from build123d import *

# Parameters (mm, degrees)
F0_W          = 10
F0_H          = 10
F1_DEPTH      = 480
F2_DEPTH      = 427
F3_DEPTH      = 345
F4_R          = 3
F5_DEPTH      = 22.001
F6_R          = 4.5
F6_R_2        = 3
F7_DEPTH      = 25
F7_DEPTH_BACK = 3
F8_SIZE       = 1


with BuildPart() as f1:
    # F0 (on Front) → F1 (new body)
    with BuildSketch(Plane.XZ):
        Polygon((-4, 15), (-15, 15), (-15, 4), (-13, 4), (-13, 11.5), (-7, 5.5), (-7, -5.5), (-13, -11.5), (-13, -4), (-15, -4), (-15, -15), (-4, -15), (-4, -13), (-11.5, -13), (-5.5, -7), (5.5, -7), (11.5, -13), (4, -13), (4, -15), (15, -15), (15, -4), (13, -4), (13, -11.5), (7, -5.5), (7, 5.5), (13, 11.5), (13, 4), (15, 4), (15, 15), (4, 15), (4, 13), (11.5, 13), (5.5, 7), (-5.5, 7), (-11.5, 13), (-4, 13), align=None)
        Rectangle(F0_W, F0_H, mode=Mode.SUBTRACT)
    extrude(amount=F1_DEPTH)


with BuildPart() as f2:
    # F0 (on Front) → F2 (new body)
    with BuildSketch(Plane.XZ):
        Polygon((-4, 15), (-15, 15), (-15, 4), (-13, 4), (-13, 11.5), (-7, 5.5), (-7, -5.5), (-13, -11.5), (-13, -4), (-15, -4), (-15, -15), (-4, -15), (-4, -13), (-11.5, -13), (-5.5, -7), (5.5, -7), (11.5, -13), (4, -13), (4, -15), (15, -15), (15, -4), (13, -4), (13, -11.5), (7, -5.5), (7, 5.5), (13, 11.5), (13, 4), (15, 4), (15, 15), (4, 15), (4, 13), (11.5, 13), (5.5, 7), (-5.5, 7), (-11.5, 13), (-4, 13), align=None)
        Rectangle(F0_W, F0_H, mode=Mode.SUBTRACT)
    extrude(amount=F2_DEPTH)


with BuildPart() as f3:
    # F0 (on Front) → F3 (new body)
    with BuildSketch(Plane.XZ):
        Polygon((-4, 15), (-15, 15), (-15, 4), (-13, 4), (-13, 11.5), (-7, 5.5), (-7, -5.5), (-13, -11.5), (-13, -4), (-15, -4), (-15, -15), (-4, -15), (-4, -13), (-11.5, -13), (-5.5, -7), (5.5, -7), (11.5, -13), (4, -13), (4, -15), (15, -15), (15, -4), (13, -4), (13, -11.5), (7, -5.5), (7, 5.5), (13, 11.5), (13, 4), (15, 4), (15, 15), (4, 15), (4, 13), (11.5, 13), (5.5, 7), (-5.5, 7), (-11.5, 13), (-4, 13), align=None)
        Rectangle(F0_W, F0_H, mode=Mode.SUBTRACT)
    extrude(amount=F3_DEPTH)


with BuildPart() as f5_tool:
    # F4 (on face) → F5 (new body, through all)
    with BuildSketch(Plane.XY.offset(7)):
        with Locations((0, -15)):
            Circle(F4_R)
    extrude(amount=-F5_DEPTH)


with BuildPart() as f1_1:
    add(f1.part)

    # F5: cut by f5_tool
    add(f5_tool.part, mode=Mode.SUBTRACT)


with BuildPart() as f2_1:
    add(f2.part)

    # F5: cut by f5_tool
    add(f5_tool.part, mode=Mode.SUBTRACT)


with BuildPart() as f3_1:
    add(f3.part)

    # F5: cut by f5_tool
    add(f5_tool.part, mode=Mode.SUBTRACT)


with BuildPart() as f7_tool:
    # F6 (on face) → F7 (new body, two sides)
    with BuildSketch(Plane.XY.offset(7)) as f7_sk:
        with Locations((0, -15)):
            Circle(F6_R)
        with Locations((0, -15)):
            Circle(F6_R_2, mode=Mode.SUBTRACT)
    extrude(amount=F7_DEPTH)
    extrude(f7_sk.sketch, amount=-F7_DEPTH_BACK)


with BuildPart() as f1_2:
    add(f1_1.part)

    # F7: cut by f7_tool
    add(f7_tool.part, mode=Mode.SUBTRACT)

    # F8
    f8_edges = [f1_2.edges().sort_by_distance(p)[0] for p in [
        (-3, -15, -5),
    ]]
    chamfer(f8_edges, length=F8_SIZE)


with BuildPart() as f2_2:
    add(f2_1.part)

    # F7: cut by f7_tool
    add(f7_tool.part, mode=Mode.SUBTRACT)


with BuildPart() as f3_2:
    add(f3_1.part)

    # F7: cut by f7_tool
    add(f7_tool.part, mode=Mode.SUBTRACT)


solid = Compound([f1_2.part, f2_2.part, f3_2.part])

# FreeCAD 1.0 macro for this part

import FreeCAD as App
import Part
import Sketcher
from FreeCAD import Vector
Q = App.Units.Quantity


def edges_at(feature, points):
    """Names of the edges that pass closest to the given points."""
    edges = feature.Shape.Edges
    near = lambda p: min(range(len(edges)), key=lambda i: edges[i].distToShape(Part.Vertex(*p))[0])
    return sorted({f"Edge{near(p) + 1}" for p in points})


def add_polygon(sketch, points):
    """Adds a closed chain of lines whose ends are joined by coincident constraints."""
    first, n = sketch.GeometryCount, len(points)
    for a, b in zip(points, points[1:] + points[:1]):
        sketch.addGeometry(Part.LineSegment(App.Vector(*a, 0), App.Vector(*b, 0)), False)
    for i in range(n):
        sketch.addConstraint(Sketcher.Constraint("Coincident", first + i, 2, first + (i + 1) % n, 1))

doc = App.newDocument("Part")
body = doc.addObject("PartDesign::Body", "Body")

# Sketch on XZ plane
sketch1 = body.newObject("Sketcher::SketchObject", "Sketch")
sketch1.AttachmentSupport = (doc.getObject("XZ_Plane"), [""])
sketch1.MapMode = "FlatFace"
add_polygon(sketch1, [(-4, 15), (-15, 15), (-15, 4), (-13, 4), (-13, 11.5), (-7, 5.5), (-7, -5.5), (-13, -11.5), (-13, -4), (-15, -4), (-15, -15), (-4, -15), (-4, -13), (-11.5, -13), (-5.5, -7), (5.5, -7), (11.5, -13), (4, -13), (4, -15), (15, -15), (15, -4), (13, -4), (13, -11.5), (7, -5.5), (7, 5.5), (13, 11.5), (13, 4), (15, 4), (15, 15), (4, 15), (4, 13), (11.5, 13), (5.5, 7), (-5.5, 7), (-11.5, 13), (-4, 13)])  # lines 0-35
add_polygon(sketch1, [(5, -5), (-5, -5), (-5, 5), (5, 5)])  # lines 36-39
sketch1.addConstraint([
    Sketcher.Constraint("Horizontal", 0),
    Sketcher.Constraint("Vertical", 1),
    Sketcher.Constraint("Horizontal", 2),
    Sketcher.Constraint("Vertical", 3),
    Sketcher.Constraint("Vertical", 5),
    Sketcher.Constraint("Vertical", 7),
    Sketcher.Constraint("Horizontal", 8),
    Sketcher.Constraint("Vertical", 9),
    Sketcher.Constraint("Horizontal", 10),
    Sketcher.Constraint("Vertical", 11),
    Sketcher.Constraint("Horizontal", 12),
    Sketcher.Constraint("Horizontal", 14),
    Sketcher.Constraint("Horizontal", 16),
    Sketcher.Constraint("Vertical", 17),
    Sketcher.Constraint("Horizontal", 18),
    Sketcher.Constraint("Vertical", 19),
    Sketcher.Constraint("Horizontal", 20),
    Sketcher.Constraint("Vertical", 21),
    Sketcher.Constraint("Vertical", 23),
    Sketcher.Constraint("Vertical", 25),
    Sketcher.Constraint("Horizontal", 26),
    Sketcher.Constraint("Vertical", 27),
    Sketcher.Constraint("Horizontal", 28),
    Sketcher.Constraint("Vertical", 29),
    Sketcher.Constraint("Horizontal", 30),
    Sketcher.Constraint("Horizontal", 32),
    Sketcher.Constraint("Horizontal", 34),
    Sketcher.Constraint("Vertical", 35),
    Sketcher.Constraint("Horizontal", 36),
    Sketcher.Constraint("Vertical", 37),
    Sketcher.Constraint("Horizontal", 38),
    Sketcher.Constraint("Vertical", 39),
    Sketcher.Constraint("Symmetric", 0, 2, 18, 2, -1, 1),
    Sketcher.Constraint("Symmetric", 2, 2, 20, 2, -1, 1),
    Sketcher.Constraint("Symmetric", 4, 2, 22, 2, -1, 1),
    Sketcher.Constraint("Symmetric", 6, 2, 24, 2, -1, 1),
    Sketcher.Constraint("Symmetric", 8, 2, 26, 2, -1, 1),
    Sketcher.Constraint("Symmetric", 10, 2, 28, 2, -1, 1),
    Sketcher.Constraint("Symmetric", 12, 2, 30, 2, -1, 1),
    Sketcher.Constraint("Symmetric", 13, 2, 31, 2, -1, 1),
    Sketcher.Constraint("Symmetric", 15, 2, 33, 2, -1, 1),
    Sketcher.Constraint("Symmetric", 36, 2, 38, 2, -1, 1),
    Sketcher.Constraint("Symmetric", 12, 2, 15, 2, -2),
    Sketcher.Constraint("Symmetric", 10, 2, 17, 2, -2),
    Sketcher.Constraint("Symmetric", 8, 2, 19, 2, -2),
    Sketcher.Constraint("Symmetric", 6, 2, 21, 2, -2),
    Sketcher.Constraint("Perpendicular", 4, 6),
    Sketcher.Constraint("Parallel", 6, 13),
    Sketcher.Constraint("Perpendicular", 13, 15),
    Sketcher.Constraint("Parallel", 15, 22),
    Sketcher.Constraint("Perpendicular", 22, 24),
    Sketcher.Constraint("Perpendicular", 31, 33),
    Sketcher.Constraint("Horizontal", 5, 2, 22, 2),
    Sketcher.Constraint("Vertical", 11, 2, 34, 2),
    Sketcher.Constraint("Equal", 10, 14),
    Sketcher.Constraint("Equal", 32, 1),
    Sketcher.Constraint("Equal", 34, 3),
    Sketcher.Constraint("Equal", 1, 5),
    Sketcher.Constraint("Equal", 26, 11),
    Sketcher.Constraint("Equal", 38, 37),
    Sketcher.Constraint("Equal", 6, 13),
    Sketcher.Constraint("DistanceX", 0, 2, 0, 1, Q("11 mm")),
    Sketcher.Constraint("DistanceX", 2, 1, 2, 2, Q("2 mm")),
    Sketcher.Constraint("DistanceX", 36, 2, 36, 1, Q("10 mm")),
    Sketcher.Constraint("DistanceX", 12, 2, 12, 1, Q("7.5 mm")),
    Sketcher.Constraint("DistanceX", 0, 2, -1, 1, Q("15 mm")),
])
pad1 = body.newObject("PartDesign::Pad", "Pad")
pad1.Profile = sketch1
pad1.Length = 480
body2 = doc.addObject("PartDesign::Body", "Body001")

# Sketch on XZ plane
sketch2 = body2.newObject("Sketcher::SketchObject", "Sketch001")
sketch2.AttachmentSupport = (doc.getObject("XZ_Plane001"), [""])
sketch2.MapMode = "FlatFace"
add_polygon(sketch2, [(-4, 15), (-15, 15), (-15, 4), (-13, 4), (-13, 11.5), (-7, 5.5), (-7, -5.5), (-13, -11.5), (-13, -4), (-15, -4), (-15, -15), (-4, -15), (-4, -13), (-11.5, -13), (-5.5, -7), (5.5, -7), (11.5, -13), (4, -13), (4, -15), (15, -15), (15, -4), (13, -4), (13, -11.5), (7, -5.5), (7, 5.5), (13, 11.5), (13, 4), (15, 4), (15, 15), (4, 15), (4, 13), (11.5, 13), (5.5, 7), (-5.5, 7), (-11.5, 13), (-4, 13)])  # lines 0-35
add_polygon(sketch2, [(5, -5), (-5, -5), (-5, 5), (5, 5)])  # lines 36-39
sketch2.addConstraint([
    Sketcher.Constraint("Horizontal", 0),
    Sketcher.Constraint("Vertical", 1),
    Sketcher.Constraint("Horizontal", 2),
    Sketcher.Constraint("Vertical", 3),
    Sketcher.Constraint("Vertical", 5),
    Sketcher.Constraint("Vertical", 7),
    Sketcher.Constraint("Horizontal", 8),
    Sketcher.Constraint("Vertical", 9),
    Sketcher.Constraint("Horizontal", 10),
    Sketcher.Constraint("Vertical", 11),
    Sketcher.Constraint("Horizontal", 12),
    Sketcher.Constraint("Horizontal", 14),
    Sketcher.Constraint("Horizontal", 16),
    Sketcher.Constraint("Vertical", 17),
    Sketcher.Constraint("Horizontal", 18),
    Sketcher.Constraint("Vertical", 19),
    Sketcher.Constraint("Horizontal", 20),
    Sketcher.Constraint("Vertical", 21),
    Sketcher.Constraint("Vertical", 23),
    Sketcher.Constraint("Vertical", 25),
    Sketcher.Constraint("Horizontal", 26),
    Sketcher.Constraint("Vertical", 27),
    Sketcher.Constraint("Horizontal", 28),
    Sketcher.Constraint("Vertical", 29),
    Sketcher.Constraint("Horizontal", 30),
    Sketcher.Constraint("Horizontal", 32),
    Sketcher.Constraint("Horizontal", 34),
    Sketcher.Constraint("Vertical", 35),
    Sketcher.Constraint("Horizontal", 36),
    Sketcher.Constraint("Vertical", 37),
    Sketcher.Constraint("Horizontal", 38),
    Sketcher.Constraint("Vertical", 39),
    Sketcher.Constraint("Symmetric", 0, 2, 18, 2, -1, 1),
    Sketcher.Constraint("Symmetric", 2, 2, 20, 2, -1, 1),
    Sketcher.Constraint("Symmetric", 4, 2, 22, 2, -1, 1),
    Sketcher.Constraint("Symmetric", 6, 2, 24, 2, -1, 1),
    Sketcher.Constraint("Symmetric", 8, 2, 26, 2, -1, 1),
    Sketcher.Constraint("Symmetric", 10, 2, 28, 2, -1, 1),
    Sketcher.Constraint("Symmetric", 12, 2, 30, 2, -1, 1),
    Sketcher.Constraint("Symmetric", 13, 2, 31, 2, -1, 1),
    Sketcher.Constraint("Symmetric", 15, 2, 33, 2, -1, 1),
    Sketcher.Constraint("Symmetric", 36, 2, 38, 2, -1, 1),
    Sketcher.Constraint("Symmetric", 12, 2, 15, 2, -2),
    Sketcher.Constraint("Symmetric", 10, 2, 17, 2, -2),
    Sketcher.Constraint("Symmetric", 8, 2, 19, 2, -2),
    Sketcher.Constraint("Symmetric", 6, 2, 21, 2, -2),
    Sketcher.Constraint("Perpendicular", 4, 6),
    Sketcher.Constraint("Parallel", 6, 13),
    Sketcher.Constraint("Perpendicular", 13, 15),
    Sketcher.Constraint("Parallel", 15, 22),
    Sketcher.Constraint("Perpendicular", 22, 24),
    Sketcher.Constraint("Perpendicular", 31, 33),
    Sketcher.Constraint("Horizontal", 5, 2, 22, 2),
    Sketcher.Constraint("Vertical", 11, 2, 34, 2),
    Sketcher.Constraint("Equal", 10, 14),
    Sketcher.Constraint("Equal", 32, 1),
    Sketcher.Constraint("Equal", 34, 3),
    Sketcher.Constraint("Equal", 1, 5),
    Sketcher.Constraint("Equal", 26, 11),
    Sketcher.Constraint("Equal", 38, 37),
    Sketcher.Constraint("Equal", 6, 13),
    Sketcher.Constraint("DistanceX", 0, 2, 0, 1, Q("11 mm")),
    Sketcher.Constraint("DistanceX", 2, 1, 2, 2, Q("2 mm")),
    Sketcher.Constraint("DistanceX", 36, 2, 36, 1, Q("10 mm")),
    Sketcher.Constraint("DistanceX", 12, 2, 12, 1, Q("7.5 mm")),
    Sketcher.Constraint("DistanceX", 0, 2, -1, 1, Q("15 mm")),
])
pad2 = body2.newObject("PartDesign::Pad", "Pad001")
pad2.Profile = sketch2
pad2.Length = 427
body3 = doc.addObject("PartDesign::Body", "Body002")

# Sketch on XZ plane
sketch3 = body3.newObject("Sketcher::SketchObject", "Sketch002")
sketch3.AttachmentSupport = (doc.getObject("XZ_Plane002"), [""])
sketch3.MapMode = "FlatFace"
add_polygon(sketch3, [(-4, 15), (-15, 15), (-15, 4), (-13, 4), (-13, 11.5), (-7, 5.5), (-7, -5.5), (-13, -11.5), (-13, -4), (-15, -4), (-15, -15), (-4, -15), (-4, -13), (-11.5, -13), (-5.5, -7), (5.5, -7), (11.5, -13), (4, -13), (4, -15), (15, -15), (15, -4), (13, -4), (13, -11.5), (7, -5.5), (7, 5.5), (13, 11.5), (13, 4), (15, 4), (15, 15), (4, 15), (4, 13), (11.5, 13), (5.5, 7), (-5.5, 7), (-11.5, 13), (-4, 13)])  # lines 0-35
add_polygon(sketch3, [(5, -5), (-5, -5), (-5, 5), (5, 5)])  # lines 36-39
sketch3.addConstraint([
    Sketcher.Constraint("Horizontal", 0),
    Sketcher.Constraint("Vertical", 1),
    Sketcher.Constraint("Horizontal", 2),
    Sketcher.Constraint("Vertical", 3),
    Sketcher.Constraint("Vertical", 5),
    Sketcher.Constraint("Vertical", 7),
    Sketcher.Constraint("Horizontal", 8),
    Sketcher.Constraint("Vertical", 9),
    Sketcher.Constraint("Horizontal", 10),
    Sketcher.Constraint("Vertical", 11),
    Sketcher.Constraint("Horizontal", 12),
    Sketcher.Constraint("Horizontal", 14),
    Sketcher.Constraint("Horizontal", 16),
    Sketcher.Constraint("Vertical", 17),
    Sketcher.Constraint("Horizontal", 18),
    Sketcher.Constraint("Vertical", 19),
    Sketcher.Constraint("Horizontal", 20),
    Sketcher.Constraint("Vertical", 21),
    Sketcher.Constraint("Vertical", 23),
    Sketcher.Constraint("Vertical", 25),
    Sketcher.Constraint("Horizontal", 26),
    Sketcher.Constraint("Vertical", 27),
    Sketcher.Constraint("Horizontal", 28),
    Sketcher.Constraint("Vertical", 29),
    Sketcher.Constraint("Horizontal", 30),
    Sketcher.Constraint("Horizontal", 32),
    Sketcher.Constraint("Horizontal", 34),
    Sketcher.Constraint("Vertical", 35),
    Sketcher.Constraint("Horizontal", 36),
    Sketcher.Constraint("Vertical", 37),
    Sketcher.Constraint("Horizontal", 38),
    Sketcher.Constraint("Vertical", 39),
    Sketcher.Constraint("Symmetric", 0, 2, 18, 2, -1, 1),
    Sketcher.Constraint("Symmetric", 2, 2, 20, 2, -1, 1),
    Sketcher.Constraint("Symmetric", 4, 2, 22, 2, -1, 1),
    Sketcher.Constraint("Symmetric", 6, 2, 24, 2, -1, 1),
    Sketcher.Constraint("Symmetric", 8, 2, 26, 2, -1, 1),
    Sketcher.Constraint("Symmetric", 10, 2, 28, 2, -1, 1),
    Sketcher.Constraint("Symmetric", 12, 2, 30, 2, -1, 1),
    Sketcher.Constraint("Symmetric", 13, 2, 31, 2, -1, 1),
    Sketcher.Constraint("Symmetric", 15, 2, 33, 2, -1, 1),
    Sketcher.Constraint("Symmetric", 36, 2, 38, 2, -1, 1),
    Sketcher.Constraint("Symmetric", 12, 2, 15, 2, -2),
    Sketcher.Constraint("Symmetric", 10, 2, 17, 2, -2),
    Sketcher.Constraint("Symmetric", 8, 2, 19, 2, -2),
    Sketcher.Constraint("Symmetric", 6, 2, 21, 2, -2),
    Sketcher.Constraint("Perpendicular", 4, 6),
    Sketcher.Constraint("Parallel", 6, 13),
    Sketcher.Constraint("Perpendicular", 13, 15),
    Sketcher.Constraint("Parallel", 15, 22),
    Sketcher.Constraint("Perpendicular", 22, 24),
    Sketcher.Constraint("Perpendicular", 31, 33),
    Sketcher.Constraint("Horizontal", 5, 2, 22, 2),
    Sketcher.Constraint("Vertical", 11, 2, 34, 2),
    Sketcher.Constraint("Equal", 10, 14),
    Sketcher.Constraint("Equal", 32, 1),
    Sketcher.Constraint("Equal", 34, 3),
    Sketcher.Constraint("Equal", 1, 5),
    Sketcher.Constraint("Equal", 26, 11),
    Sketcher.Constraint("Equal", 38, 37),
    Sketcher.Constraint("Equal", 6, 13),
    Sketcher.Constraint("DistanceX", 0, 2, 0, 1, Q("11 mm")),
    Sketcher.Constraint("DistanceX", 2, 1, 2, 2, Q("2 mm")),
    Sketcher.Constraint("DistanceX", 36, 2, 36, 1, Q("10 mm")),
    Sketcher.Constraint("DistanceX", 12, 2, 12, 1, Q("7.5 mm")),
    Sketcher.Constraint("DistanceX", 0, 2, -1, 1, Q("15 mm")),
])
pad3 = body3.newObject("PartDesign::Pad", "Pad002")
pad3.Profile = sketch3
pad3.Length = 345
body4 = doc.addObject("PartDesign::Body", "Body003")

# Sketch on XY plane
sketch4 = body4.newObject("Sketcher::SketchObject", "Sketch003")
sketch4.AttachmentSupport = (doc.getObject("XY_Plane003"), [""])
sketch4.MapMode = "FlatFace"
sketch4.AttachmentOffset = App.Placement(Vector(0, 0, 7), App.Rotation())
sketch4.addGeometry(Part.Circle(Vector(0, -15, 0), Vector(0, 0, 1), 3), False)
sketch4.addConstraint([
    Sketcher.Constraint("PointOnObject", 0, 3, -2),
    Sketcher.Constraint("Diameter", 0, Q("6 mm")),
    Sketcher.Constraint("DistanceY", 0, 3, -1, 1, Q("15 mm")),
])
pad4 = body4.newObject("PartDesign::Pad", "Pad003")
pad4.Profile = sketch4
pad4.Length = 22.001
pad4.Reversed = True
doc.recompute()

body5 = doc.addObject("PartDesign::Body", "Body004")
body5.BaseFeature = body4
boolean = body.newObject("PartDesign::Boolean", "Boolean")
boolean.Type = "Cut"
boolean.addObjects([body5])
doc.recompute()

body6 = doc.addObject("PartDesign::Body", "Body005")
body6.BaseFeature = body4
boolean2 = body2.newObject("PartDesign::Boolean", "Boolean001")
boolean2.Type = "Cut"
boolean2.addObjects([body6])
doc.recompute()

boolean3 = body3.newObject("PartDesign::Boolean", "Boolean002")
boolean3.Type = "Cut"
boolean3.addObjects([body4])
body7 = doc.addObject("PartDesign::Body", "Body006")

# Sketch on XY plane
sketch5 = body7.newObject("Sketcher::SketchObject", "Sketch004")
sketch5.AttachmentSupport = (doc.getObject("XY_Plane006"), [""])
sketch5.MapMode = "FlatFace"
sketch5.AttachmentOffset = App.Placement(Vector(0, 0, 7), App.Rotation())
sketch5.addGeometry([
    Part.Circle(Vector(0, -15, 0), Vector(0, 0, 1), 4.5),
    Part.Circle(Vector(0, -15, 0), Vector(0, 0, 1), 3),
], False)
sketch5.addConstraint([
    Sketcher.Constraint("Coincident", 1, 3, 0, 3),
    Sketcher.Constraint("PointOnObject", 0, 3, -2),
    Sketcher.Constraint("Diameter", 0, Q("9 mm")),
    Sketcher.Constraint("Diameter", 1, Q("6 mm")),
    Sketcher.Constraint("DistanceY", 0, 3, -1, 1, Q("15 mm")),
])
pad5 = body7.newObject("PartDesign::Pad", "Pad004")
pad5.Profile = sketch5
pad5.Type = "TwoLengths"
pad5.Length = 25
pad5.Length2 = 3
doc.recompute()

body8 = doc.addObject("PartDesign::Body", "Body007")
body8.BaseFeature = body7
boolean4 = body.newObject("PartDesign::Boolean", "Boolean003")
boolean4.Type = "Cut"
boolean4.addObjects([body8])
doc.recompute()

chamfer = body.newObject("PartDesign::Chamfer", "Chamfer")
chamfer.Base = (boolean4, edges_at(boolean4, [(-3, -15, -5)]))
chamfer.Size = 1
doc.recompute()

body9 = doc.addObject("PartDesign::Body", "Body008")
body9.BaseFeature = body7
boolean5 = body2.newObject("PartDesign::Boolean", "Boolean004")
boolean5.Type = "Cut"
boolean5.addObjects([body9])
doc.recompute()

boolean6 = body3.newObject("PartDesign::Boolean", "Boolean005")
boolean6.Type = "Cut"
boolean6.addObjects([body7])

doc.recompute()
